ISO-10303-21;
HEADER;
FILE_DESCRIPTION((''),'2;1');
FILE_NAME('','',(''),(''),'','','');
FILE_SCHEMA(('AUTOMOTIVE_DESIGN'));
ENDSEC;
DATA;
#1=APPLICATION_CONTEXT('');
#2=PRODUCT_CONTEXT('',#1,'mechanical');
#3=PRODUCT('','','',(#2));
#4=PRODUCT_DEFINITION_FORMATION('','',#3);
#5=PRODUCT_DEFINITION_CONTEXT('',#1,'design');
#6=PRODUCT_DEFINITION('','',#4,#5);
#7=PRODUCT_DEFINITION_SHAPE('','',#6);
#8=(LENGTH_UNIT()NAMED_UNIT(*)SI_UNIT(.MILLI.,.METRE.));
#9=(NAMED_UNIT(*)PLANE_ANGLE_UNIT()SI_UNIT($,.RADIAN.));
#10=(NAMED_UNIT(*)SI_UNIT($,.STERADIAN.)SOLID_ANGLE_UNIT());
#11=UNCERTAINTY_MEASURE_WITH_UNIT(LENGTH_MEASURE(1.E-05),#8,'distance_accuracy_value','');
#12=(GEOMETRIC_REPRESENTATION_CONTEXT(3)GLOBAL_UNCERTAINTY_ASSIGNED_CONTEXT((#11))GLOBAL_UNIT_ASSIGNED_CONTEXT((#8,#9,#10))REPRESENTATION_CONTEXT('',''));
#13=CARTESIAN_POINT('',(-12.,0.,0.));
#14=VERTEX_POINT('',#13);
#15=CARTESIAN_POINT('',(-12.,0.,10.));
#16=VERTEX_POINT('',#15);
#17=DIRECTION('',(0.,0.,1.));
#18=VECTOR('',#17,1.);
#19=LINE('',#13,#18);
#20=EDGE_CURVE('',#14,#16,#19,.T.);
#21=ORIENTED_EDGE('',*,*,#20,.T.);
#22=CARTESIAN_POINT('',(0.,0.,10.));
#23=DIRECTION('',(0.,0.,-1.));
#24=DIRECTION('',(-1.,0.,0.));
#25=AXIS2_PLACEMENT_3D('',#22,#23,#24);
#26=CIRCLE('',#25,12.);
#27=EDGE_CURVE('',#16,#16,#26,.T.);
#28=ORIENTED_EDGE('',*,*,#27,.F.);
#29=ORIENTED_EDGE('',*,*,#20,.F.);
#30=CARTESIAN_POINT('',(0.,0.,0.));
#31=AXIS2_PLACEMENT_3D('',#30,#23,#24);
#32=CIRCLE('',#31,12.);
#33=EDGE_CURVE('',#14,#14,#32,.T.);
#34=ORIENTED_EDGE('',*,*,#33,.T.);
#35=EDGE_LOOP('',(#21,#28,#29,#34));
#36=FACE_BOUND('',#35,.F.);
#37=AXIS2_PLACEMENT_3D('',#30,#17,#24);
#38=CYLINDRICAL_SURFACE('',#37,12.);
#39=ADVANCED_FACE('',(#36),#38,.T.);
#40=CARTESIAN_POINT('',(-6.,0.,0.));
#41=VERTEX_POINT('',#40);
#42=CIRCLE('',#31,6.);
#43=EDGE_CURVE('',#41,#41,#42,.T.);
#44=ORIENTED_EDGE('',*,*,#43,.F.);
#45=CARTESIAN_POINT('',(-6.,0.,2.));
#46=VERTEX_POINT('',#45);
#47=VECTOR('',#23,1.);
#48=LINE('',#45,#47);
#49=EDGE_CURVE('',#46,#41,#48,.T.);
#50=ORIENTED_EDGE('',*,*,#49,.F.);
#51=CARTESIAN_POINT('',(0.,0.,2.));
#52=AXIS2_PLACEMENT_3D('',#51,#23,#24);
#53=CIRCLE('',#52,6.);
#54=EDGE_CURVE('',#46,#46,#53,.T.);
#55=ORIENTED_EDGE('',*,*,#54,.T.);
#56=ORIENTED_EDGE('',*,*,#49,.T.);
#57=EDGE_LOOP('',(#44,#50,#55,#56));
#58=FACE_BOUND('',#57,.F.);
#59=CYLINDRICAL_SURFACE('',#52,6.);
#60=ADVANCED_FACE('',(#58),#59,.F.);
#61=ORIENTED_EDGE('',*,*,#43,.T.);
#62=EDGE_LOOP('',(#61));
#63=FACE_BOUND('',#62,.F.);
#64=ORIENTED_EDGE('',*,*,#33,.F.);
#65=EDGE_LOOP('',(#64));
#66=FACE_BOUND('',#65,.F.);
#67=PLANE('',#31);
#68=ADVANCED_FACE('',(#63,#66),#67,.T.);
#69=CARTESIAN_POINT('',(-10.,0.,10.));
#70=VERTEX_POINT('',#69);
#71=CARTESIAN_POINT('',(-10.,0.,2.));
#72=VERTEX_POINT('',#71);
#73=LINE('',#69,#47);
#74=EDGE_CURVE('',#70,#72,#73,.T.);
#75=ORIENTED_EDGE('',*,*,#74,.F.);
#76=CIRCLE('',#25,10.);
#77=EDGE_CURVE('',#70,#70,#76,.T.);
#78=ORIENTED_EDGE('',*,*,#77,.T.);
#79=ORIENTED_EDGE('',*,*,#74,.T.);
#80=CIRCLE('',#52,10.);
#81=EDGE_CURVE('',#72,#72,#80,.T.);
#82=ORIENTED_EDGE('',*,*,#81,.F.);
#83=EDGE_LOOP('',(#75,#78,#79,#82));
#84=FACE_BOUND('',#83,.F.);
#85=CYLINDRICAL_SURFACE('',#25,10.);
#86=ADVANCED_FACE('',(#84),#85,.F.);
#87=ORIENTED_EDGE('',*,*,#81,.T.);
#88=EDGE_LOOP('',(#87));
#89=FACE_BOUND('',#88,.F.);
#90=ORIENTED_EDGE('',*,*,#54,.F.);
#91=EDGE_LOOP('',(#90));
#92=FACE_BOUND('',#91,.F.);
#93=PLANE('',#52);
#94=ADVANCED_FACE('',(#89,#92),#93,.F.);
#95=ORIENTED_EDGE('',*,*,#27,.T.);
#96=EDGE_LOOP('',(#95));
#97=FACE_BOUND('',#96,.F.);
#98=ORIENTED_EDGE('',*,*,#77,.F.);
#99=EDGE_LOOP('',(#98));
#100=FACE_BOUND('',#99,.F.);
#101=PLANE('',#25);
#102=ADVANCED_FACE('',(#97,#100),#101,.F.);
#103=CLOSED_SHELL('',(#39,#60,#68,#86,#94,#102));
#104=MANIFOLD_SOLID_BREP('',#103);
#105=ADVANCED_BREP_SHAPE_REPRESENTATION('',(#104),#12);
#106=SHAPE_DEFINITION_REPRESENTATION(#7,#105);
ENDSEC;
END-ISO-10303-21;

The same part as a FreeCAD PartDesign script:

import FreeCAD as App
import Part
import Sketcher
Q = App.Units.Quantity

doc = App.newDocument("Part")
body = doc.addObject("PartDesign::Body", "Body")

sketch1 = doc.addObject("Sketcher::SketchObject", "Sketch")
body.addObject(sketch1)
sketch1.AttachmentSupport = (doc.XZ_Plane, [""])
sketch1.MapMode = "FlatFace"
sketch1.addGeometry(Part.LineSegment(App.Vector(-12, 0, 0), App.Vector(-6, 0, 0)), False)
sketch1.addGeometry(Part.LineSegment(App.Vector(-6, 0, 0), App.Vector(-6, 2, 0)), False)
sketch1.addGeometry(Part.LineSegment(App.Vector(-6, 2, 0), App.Vector(-10, 2, 0)), False)
sketch1.addGeometry(Part.LineSegment(App.Vector(-10, 2, 0), App.Vector(-10, 10, 0)), False)
sketch1.addGeometry(Part.LineSegment(App.Vector(-10, 10, 0), App.Vector(-12, 10, 0)), False)
sketch1.addGeometry(Part.LineSegment(App.Vector(-12, 10, 0), App.Vector(-12, 0, 0)), False)
sketch1.addConstraint(Sketcher.Constraint("Coincident", 0, 2, 1, 1))
sketch1.addConstraint(Sketcher.Constraint("Coincident", 1, 2, 2, 1))
sketch1.addConstraint(Sketcher.Constraint("Coincident", 2, 2, 3, 1))
sketch1.addConstraint(Sketcher.Constraint("Coincident", 3, 2, 4, 1))
sketch1.addConstraint(Sketcher.Constraint("Coincident", 4, 2, 5, 1))
sketch1.addConstraint(Sketcher.Constraint("Coincident", 5, 2, 0, 1))
sketch1.addConstraint(Sketcher.Constraint("Horizontal", 0))
sketch1.addConstraint(Sketcher.Constraint("Vertical", 1))
sketch1.addConstraint(Sketcher.Constraint("Horizontal", 2))
sketch1.addConstraint(Sketcher.Constraint("Vertical", 3))
sketch1.addConstraint(Sketcher.Constraint("Horizontal", 4))
sketch1.addConstraint(Sketcher.Constraint("Vertical", 5))
sketch1.addConstraint(Sketcher.Constraint("PointOnObject", 0, 2, -1))
sketch1.addConstraint(Sketcher.Constraint("Equal", 4, 1))
sketch1.addConstraint(Sketcher.Constraint("DistanceX", 0, 1, 0, 2, Q("6 mm")))
sketch1.addConstraint(Sketcher.Constraint("DistanceX", 2, 2, 2, 1, Q("4 mm")))
sketch1.addConstraint(Sketcher.Constraint("DistanceY", 3, 1, 3, 2, Q("8 mm")))
sketch1.addConstraint(Sketcher.Constraint("DistanceX", 0, 2, -1, 1, Q("6 mm")))
revolution = doc.addObject("PartDesign::Revolution", "Revolution")
body.addObject(revolution)
revolution.Profile = sketch1
revolution.ReferenceAxis = (sketch1, ["V_Axis"])
revolution.Angle = 360

doc.recompute()
